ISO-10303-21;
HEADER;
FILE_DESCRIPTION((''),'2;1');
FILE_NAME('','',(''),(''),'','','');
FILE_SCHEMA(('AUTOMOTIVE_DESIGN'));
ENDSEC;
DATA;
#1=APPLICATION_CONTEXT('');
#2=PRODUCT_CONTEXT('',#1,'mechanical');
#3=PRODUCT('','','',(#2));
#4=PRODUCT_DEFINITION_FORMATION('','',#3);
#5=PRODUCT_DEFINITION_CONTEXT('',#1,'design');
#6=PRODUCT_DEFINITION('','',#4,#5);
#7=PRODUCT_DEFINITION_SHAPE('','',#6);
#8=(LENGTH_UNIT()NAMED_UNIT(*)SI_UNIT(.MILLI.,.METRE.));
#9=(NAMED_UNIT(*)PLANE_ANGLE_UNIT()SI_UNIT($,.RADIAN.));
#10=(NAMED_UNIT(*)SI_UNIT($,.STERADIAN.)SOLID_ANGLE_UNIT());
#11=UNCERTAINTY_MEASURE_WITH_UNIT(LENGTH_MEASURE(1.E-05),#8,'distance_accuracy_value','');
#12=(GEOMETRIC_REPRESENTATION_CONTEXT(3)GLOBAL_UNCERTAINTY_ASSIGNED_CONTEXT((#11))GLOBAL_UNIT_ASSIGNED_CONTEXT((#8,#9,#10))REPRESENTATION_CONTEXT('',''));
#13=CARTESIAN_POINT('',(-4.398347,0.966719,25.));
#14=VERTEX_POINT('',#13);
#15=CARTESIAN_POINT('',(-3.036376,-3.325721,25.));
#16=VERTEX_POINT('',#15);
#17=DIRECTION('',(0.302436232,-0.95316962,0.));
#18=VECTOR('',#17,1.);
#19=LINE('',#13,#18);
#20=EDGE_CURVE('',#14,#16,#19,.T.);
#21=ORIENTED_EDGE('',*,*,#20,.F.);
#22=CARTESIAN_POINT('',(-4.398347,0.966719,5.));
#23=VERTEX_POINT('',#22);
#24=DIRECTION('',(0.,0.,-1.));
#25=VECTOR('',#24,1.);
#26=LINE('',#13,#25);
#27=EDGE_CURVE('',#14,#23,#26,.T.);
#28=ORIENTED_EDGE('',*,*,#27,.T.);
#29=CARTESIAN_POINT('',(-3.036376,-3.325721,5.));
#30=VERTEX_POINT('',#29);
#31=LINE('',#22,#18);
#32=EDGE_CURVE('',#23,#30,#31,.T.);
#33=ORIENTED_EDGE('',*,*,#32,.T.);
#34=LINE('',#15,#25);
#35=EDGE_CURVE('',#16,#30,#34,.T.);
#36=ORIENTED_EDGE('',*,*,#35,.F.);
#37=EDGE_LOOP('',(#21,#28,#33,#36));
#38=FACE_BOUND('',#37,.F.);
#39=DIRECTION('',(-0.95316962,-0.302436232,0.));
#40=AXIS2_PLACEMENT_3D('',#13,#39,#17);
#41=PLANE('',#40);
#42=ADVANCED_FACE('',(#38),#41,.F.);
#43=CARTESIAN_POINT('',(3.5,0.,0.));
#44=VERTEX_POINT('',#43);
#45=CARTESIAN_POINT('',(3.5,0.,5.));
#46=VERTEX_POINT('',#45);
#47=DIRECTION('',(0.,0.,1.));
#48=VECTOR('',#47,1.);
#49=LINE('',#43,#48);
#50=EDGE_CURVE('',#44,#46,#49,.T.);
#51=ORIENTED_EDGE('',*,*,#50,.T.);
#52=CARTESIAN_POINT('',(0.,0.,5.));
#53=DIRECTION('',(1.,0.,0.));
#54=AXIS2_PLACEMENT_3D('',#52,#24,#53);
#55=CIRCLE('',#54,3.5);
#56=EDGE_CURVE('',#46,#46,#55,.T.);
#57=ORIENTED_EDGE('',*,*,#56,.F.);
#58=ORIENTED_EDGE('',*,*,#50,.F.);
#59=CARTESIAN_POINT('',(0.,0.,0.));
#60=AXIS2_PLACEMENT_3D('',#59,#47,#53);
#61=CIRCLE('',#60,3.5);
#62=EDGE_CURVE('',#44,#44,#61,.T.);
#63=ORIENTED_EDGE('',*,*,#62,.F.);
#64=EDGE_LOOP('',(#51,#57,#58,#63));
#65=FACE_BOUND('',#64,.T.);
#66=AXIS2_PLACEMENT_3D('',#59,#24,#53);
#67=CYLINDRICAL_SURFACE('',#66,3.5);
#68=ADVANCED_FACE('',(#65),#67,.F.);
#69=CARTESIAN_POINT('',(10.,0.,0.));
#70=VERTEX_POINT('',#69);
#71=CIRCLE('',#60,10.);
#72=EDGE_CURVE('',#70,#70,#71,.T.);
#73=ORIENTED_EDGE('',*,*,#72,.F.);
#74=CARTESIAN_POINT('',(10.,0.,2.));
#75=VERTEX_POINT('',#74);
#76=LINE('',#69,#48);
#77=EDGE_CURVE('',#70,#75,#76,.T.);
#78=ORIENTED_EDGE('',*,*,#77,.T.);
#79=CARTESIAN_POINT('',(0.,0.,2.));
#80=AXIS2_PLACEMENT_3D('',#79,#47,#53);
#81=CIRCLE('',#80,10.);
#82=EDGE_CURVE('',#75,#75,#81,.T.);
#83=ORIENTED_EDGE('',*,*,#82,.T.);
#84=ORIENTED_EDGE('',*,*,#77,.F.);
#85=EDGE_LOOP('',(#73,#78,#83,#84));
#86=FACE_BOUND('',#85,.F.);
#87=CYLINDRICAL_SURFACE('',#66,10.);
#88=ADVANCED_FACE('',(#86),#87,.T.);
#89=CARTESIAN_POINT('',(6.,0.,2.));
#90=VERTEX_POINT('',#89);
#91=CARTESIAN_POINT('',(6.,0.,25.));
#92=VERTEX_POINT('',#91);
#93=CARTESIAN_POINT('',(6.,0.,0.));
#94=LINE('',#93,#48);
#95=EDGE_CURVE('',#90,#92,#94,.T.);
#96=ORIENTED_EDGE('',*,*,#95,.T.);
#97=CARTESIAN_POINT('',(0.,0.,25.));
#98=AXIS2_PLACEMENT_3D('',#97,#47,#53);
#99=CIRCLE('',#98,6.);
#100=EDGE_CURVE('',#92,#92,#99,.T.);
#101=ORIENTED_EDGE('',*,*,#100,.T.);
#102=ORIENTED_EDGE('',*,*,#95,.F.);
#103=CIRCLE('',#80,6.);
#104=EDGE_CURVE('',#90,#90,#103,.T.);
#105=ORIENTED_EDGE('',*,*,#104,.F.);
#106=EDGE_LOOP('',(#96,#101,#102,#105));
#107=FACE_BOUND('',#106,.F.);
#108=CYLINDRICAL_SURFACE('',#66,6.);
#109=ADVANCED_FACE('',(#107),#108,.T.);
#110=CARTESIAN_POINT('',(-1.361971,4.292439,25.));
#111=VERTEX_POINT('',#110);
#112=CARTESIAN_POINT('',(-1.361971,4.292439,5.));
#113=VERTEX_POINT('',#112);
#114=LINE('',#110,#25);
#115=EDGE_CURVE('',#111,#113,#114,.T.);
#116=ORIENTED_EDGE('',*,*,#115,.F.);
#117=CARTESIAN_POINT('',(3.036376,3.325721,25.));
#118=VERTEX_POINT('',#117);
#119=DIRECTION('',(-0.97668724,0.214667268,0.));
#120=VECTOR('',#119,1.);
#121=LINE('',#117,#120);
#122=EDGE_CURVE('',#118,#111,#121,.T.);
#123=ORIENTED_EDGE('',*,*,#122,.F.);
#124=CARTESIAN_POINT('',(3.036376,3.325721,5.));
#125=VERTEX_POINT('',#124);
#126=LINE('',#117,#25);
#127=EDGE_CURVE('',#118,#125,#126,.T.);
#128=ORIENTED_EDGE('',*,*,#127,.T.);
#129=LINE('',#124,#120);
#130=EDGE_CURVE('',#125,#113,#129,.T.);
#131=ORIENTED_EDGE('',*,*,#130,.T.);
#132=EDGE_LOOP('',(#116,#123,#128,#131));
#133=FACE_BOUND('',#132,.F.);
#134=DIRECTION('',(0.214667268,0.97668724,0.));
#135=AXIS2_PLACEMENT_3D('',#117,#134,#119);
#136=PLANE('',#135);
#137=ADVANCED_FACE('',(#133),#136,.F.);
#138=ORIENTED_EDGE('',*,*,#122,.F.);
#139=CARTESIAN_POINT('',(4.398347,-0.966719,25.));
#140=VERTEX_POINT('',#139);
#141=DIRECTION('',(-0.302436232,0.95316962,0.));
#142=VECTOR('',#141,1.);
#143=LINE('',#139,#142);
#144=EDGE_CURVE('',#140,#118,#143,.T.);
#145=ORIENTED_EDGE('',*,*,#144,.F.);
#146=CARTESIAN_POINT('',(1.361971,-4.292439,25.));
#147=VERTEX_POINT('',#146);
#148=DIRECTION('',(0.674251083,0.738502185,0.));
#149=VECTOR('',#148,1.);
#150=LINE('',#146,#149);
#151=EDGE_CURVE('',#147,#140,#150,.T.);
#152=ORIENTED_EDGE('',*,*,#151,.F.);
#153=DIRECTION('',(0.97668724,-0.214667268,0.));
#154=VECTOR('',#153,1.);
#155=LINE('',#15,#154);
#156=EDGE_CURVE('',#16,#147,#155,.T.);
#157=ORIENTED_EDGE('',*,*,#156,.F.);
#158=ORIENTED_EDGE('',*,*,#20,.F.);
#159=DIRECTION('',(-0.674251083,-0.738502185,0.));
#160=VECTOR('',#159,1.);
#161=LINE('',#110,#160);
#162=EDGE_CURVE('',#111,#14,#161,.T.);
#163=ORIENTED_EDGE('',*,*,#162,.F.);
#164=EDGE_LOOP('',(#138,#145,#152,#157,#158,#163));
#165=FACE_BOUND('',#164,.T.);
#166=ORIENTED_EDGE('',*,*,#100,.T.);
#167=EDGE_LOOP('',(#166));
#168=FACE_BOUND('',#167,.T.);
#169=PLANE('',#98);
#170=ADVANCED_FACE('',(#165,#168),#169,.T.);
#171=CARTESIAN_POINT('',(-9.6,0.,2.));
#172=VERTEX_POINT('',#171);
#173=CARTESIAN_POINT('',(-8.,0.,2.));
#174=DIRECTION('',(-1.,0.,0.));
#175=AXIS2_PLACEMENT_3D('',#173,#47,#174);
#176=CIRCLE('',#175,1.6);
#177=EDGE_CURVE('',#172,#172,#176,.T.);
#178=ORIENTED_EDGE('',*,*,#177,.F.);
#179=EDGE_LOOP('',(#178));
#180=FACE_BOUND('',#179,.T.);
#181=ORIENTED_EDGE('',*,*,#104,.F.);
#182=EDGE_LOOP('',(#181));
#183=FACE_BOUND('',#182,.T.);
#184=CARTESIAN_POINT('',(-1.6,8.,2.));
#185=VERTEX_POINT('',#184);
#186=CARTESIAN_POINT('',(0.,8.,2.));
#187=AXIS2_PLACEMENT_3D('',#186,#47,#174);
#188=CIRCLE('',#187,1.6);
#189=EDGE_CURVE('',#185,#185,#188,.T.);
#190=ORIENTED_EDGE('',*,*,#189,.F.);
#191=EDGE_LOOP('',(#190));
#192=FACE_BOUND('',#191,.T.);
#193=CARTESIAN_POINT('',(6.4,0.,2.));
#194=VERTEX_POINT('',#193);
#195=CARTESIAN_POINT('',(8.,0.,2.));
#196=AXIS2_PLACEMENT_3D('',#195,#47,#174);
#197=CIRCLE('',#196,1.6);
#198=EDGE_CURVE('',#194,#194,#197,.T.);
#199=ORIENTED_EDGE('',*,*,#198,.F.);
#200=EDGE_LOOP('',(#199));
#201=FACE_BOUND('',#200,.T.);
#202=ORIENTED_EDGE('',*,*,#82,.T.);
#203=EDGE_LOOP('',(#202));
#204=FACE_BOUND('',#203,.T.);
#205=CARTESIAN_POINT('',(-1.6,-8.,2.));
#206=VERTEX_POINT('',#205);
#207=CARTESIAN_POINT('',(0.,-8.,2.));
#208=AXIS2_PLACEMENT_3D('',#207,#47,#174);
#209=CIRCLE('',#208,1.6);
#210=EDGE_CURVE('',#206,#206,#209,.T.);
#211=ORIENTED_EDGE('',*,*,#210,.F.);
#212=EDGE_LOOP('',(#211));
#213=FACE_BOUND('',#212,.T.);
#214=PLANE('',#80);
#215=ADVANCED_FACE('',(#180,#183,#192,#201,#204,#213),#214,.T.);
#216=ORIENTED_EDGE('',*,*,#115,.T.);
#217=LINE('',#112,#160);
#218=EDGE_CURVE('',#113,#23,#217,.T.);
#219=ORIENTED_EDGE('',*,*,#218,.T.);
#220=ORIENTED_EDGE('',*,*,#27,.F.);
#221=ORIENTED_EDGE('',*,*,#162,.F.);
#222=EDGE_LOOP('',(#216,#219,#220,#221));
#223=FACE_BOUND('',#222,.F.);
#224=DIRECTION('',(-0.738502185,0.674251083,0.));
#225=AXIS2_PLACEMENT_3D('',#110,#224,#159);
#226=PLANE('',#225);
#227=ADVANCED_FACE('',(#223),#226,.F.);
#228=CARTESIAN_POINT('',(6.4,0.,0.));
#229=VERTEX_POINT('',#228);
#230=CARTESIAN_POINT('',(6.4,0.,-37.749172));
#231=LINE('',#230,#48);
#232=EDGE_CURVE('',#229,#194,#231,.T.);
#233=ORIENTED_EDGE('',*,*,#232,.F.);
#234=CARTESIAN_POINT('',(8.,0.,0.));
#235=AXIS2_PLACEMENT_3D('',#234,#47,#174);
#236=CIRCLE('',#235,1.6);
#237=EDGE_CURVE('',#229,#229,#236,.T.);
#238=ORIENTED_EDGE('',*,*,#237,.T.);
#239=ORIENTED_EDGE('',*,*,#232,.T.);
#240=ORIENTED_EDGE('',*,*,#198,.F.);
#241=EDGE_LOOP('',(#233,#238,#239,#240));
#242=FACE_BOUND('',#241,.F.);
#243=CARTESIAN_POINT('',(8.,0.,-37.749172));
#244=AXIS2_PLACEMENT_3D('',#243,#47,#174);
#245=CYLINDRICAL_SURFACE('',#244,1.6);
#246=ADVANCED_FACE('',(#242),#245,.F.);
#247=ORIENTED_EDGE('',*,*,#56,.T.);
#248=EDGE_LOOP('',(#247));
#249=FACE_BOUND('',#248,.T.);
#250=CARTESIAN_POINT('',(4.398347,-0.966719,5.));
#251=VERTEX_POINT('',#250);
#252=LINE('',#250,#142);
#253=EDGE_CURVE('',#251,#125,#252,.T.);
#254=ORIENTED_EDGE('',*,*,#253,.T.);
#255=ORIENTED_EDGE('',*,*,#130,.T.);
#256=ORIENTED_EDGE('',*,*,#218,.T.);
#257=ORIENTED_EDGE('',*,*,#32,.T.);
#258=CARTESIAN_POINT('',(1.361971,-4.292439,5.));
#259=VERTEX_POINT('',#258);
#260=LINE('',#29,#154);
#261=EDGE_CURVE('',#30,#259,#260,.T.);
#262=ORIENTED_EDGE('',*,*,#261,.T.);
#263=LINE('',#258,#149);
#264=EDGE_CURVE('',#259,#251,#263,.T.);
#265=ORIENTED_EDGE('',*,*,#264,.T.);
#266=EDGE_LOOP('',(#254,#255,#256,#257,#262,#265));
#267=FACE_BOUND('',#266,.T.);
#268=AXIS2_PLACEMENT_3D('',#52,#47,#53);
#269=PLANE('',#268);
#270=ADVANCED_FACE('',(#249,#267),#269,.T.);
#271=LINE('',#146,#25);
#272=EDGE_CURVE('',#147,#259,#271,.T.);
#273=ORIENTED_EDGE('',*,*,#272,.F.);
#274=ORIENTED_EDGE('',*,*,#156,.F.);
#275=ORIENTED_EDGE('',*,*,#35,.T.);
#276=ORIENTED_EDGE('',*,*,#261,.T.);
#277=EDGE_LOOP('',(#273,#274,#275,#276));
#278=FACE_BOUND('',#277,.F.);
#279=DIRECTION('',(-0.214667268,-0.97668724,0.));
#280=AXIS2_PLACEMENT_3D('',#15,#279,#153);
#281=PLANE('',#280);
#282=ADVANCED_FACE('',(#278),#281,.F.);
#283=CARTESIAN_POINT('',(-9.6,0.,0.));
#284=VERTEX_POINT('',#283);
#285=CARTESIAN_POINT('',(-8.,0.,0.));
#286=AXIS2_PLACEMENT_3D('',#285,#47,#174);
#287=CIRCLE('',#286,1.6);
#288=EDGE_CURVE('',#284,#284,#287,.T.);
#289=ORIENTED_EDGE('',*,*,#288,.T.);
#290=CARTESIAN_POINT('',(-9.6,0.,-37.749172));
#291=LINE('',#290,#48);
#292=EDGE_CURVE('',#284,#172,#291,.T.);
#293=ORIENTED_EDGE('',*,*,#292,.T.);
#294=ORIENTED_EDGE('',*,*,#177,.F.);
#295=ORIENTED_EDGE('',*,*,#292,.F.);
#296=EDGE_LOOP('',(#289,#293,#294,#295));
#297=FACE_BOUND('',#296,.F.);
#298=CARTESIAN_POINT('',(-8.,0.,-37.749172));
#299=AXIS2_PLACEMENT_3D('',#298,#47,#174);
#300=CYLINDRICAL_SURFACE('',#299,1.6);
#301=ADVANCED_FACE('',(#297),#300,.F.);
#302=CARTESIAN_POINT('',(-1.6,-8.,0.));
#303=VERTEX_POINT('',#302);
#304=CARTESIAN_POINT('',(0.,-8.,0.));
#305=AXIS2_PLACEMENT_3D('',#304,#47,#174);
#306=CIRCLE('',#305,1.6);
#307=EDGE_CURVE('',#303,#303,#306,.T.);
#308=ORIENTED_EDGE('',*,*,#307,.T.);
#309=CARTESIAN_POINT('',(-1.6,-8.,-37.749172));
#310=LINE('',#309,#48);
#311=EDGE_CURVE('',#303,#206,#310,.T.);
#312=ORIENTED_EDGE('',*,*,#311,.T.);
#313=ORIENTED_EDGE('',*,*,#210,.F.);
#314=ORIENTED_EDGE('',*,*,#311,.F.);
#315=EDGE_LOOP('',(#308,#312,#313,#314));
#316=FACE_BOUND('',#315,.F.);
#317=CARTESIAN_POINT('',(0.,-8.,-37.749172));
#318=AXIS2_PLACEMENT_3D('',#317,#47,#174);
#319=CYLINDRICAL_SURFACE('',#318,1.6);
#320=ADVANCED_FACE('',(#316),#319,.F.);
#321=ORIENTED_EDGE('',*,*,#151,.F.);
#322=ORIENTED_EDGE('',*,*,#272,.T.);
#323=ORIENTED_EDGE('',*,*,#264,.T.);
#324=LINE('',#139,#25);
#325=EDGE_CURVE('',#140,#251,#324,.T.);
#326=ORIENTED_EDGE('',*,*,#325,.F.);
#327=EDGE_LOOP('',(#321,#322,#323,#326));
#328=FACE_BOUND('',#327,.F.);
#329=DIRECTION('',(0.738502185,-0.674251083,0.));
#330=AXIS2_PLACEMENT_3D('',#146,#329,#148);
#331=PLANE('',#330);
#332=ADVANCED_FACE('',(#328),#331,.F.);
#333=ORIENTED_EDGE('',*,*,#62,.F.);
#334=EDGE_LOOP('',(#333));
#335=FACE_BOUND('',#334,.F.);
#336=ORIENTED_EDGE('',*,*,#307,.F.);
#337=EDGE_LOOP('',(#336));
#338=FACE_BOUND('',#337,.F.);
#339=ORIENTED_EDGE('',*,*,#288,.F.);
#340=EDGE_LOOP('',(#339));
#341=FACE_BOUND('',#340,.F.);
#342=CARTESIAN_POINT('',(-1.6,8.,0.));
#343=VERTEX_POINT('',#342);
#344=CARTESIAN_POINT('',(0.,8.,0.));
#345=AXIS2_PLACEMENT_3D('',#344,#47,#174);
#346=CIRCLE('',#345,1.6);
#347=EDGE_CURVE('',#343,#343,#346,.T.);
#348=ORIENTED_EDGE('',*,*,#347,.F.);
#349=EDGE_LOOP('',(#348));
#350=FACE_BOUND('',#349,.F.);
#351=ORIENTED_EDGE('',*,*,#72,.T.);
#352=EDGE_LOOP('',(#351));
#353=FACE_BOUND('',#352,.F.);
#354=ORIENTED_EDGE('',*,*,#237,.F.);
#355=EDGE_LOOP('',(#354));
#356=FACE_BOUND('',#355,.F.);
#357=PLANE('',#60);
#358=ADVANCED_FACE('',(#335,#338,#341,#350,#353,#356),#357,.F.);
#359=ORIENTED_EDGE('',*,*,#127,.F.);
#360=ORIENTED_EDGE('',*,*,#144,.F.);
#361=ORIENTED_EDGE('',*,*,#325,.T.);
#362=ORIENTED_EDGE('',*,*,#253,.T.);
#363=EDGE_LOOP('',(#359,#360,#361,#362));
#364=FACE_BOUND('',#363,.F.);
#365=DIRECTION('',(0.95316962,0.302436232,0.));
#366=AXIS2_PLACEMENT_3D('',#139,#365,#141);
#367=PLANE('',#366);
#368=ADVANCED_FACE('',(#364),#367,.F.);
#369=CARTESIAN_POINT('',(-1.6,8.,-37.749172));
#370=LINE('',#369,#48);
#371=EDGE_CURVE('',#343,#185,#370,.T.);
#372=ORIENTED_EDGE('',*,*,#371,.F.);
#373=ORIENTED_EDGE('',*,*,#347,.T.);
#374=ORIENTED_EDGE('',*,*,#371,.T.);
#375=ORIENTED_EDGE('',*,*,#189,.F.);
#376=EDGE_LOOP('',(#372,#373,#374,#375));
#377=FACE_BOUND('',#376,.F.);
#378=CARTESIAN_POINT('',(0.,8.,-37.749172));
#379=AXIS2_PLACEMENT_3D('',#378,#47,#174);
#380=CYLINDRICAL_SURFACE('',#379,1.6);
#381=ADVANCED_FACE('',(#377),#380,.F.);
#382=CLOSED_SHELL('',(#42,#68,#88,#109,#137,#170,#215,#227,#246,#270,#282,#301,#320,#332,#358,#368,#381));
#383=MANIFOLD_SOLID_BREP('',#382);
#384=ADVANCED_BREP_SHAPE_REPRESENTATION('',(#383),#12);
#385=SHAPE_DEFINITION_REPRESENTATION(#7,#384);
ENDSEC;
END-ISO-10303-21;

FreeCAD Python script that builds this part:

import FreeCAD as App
import Part
import Sketcher
from FreeCAD import Vector

doc = App.newDocument("Part")
body = doc.addObject("PartDesign::Body", "Body")

# Sketch on XY plane
sketch1 = body.newObject("Sketcher::SketchObject", "Sketch")
sketch1.AttachmentSupport = (doc.getObject("XY_Plane"), [""])
sketch1.MapMode = "FlatFace"
sketch1.addGeometry(Part.Circle(Vector(0, 0, 0), Vector(0, 0, 1), 10), False)
sketch1.addGeometry(Part.Circle(Vector(0, 0, 0), Vector(0, 0, 1), 6), False)
sketch1.addConstraint(Sketcher.Constraint("Coincident", 0, 3, -1, 1))
sketch1.addConstraint(Sketcher.Constraint("Coincident", 1, 3, -1, 1))
sketch1.addConstraint(Sketcher.Constraint("Diameter", 0, 20.0))
sketch1.addConstraint(Sketcher.Constraint("Diameter", 1, 12.0))
pad1 = body.newObject("PartDesign::Pad", "Pad")
pad1.Profile = sketch1
pad1.Length = 2

# Sketch on XY plane
sketch2 = body.newObject("Sketcher::SketchObject", "Sketch001")
sketch2.AttachmentSupport = (doc.getObject("XY_Plane"), [""])
sketch2.MapMode = "FlatFace"
sketch2.addGeometry(Part.Circle(Vector(0, 0, 0), Vector(0, 0, 1), 6), False)
sketch2.addGeometry(Part.Circle(Vector(0, 0, 0), Vector(0, 0, 1), 3.5), False)
sketch2.addConstraint(Sketcher.Constraint("Coincident", 0, 3, -1, 1))
sketch2.addConstraint(Sketcher.Constraint("Coincident", 1, 3, -1, 1))
sketch2.addConstraint(Sketcher.Constraint("Diameter", 0, 12.0))
sketch2.addConstraint(Sketcher.Constraint("Diameter", 1, 7.0))
pad2 = body.newObject("PartDesign::Pad", "Pad001")
pad2.Profile = sketch2
pad2.Length = 25

# Sketch on XY plane
sketch3 = body.newObject("Sketcher::SketchObject", "Sketch002")
sketch3.AttachmentSupport = (doc.getObject("XY_Plane"), [""])
sketch3.MapMode = "FlatFace"
sketch3.AttachmentOffset = App.Placement(Vector(0, 0, 25), App.Rotation())
sketch3.addGeometry(Part.LineSegment(Vector(1.4, -4.3, 0), Vector(4.4, -1, 0)), False)
sketch3.addGeometry(Part.LineSegment(Vector(4.4, -1, 0), Vector(3, 3.3, 0)), False)
sketch3.addGeometry(Part.LineSegment(Vector(3, 3.3, 0), Vector(-1.4, 4.3, 0)), False)
sketch3.addGeometry(Part.LineSegment(Vector(-1.4, 4.3, 0), Vector(-4.4, 1, 0)), False)
sketch3.addGeometry(Part.LineSegment(Vector(-4.4, 1, 0), Vector(-3, -3.3, 0)), False)
sketch3.addGeometry(Part.LineSegment(Vector(-3, -3.3, 0), Vector(1.4, -4.3, 0)), False)
sketch3.addConstraint(Sketcher.Constraint("Coincident", 0, 2, 1, 1))
sketch3.addConstraint(Sketcher.Constraint("Coincident", 1, 2, 2, 1))
sketch3.addConstraint(Sketcher.Constraint("Coincident", 2, 2, 3, 1))
sketch3.addConstraint(Sketcher.Constraint("Coincident", 3, 2, 4, 1))
sketch3.addConstraint(Sketcher.Constraint("Coincident", 4, 2, 5, 1))
sketch3.addConstraint(Sketcher.Constraint("Coincident", 5, 2, 0, 1))
sketch3.addConstraint(Sketcher.Constraint("Symmetric", 0, 2, 3, 2, -1, 1))
sketch3.addConstraint(Sketcher.Constraint("Symmetric", 1, 2, 4, 2, -1, 1))
sketch3.addConstraint(Sketcher.Constraint("Symmetric", 2, 2, 5, 2, -1, 1))
sketch3.addConstraint(Sketcher.Constraint("Equal", 0, 1))
sketch3.addConstraint(Sketcher.Constraint("Equal", 1, 2))
sketch3.addConstraint(Sketcher.Constraint("Distance", 0, 4.503331))
sketch3.addConstraint(Sketcher.Constraint("DistanceY", 0, 2, -1, 1, 0.966719))
sketch3.addConstraint(Sketcher.Constraint("DistanceY", -1, 1, 1, 2, 3.325721))
sketch3.addConstraint(Sketcher.Constraint("DistanceX", 2, 2, -1, 1, 1.361971))
pocket1 = body.newObject("PartDesign::Pocket", "Pocket")
pocket1.Profile = sketch3
pocket1.Length = 20

# Sketch on XY plane
sketch4 = body.newObject("Sketcher::SketchObject", "Sketch003")
sketch4.AttachmentSupport = (doc.getObject("XY_Plane"), [""])
sketch4.MapMode = "FlatFace"
sketch4.addGeometry(Part.Circle(Vector(-8, 0, 0), Vector(0, 0, 1), 1.6), False)
sketch4.addGeometry(Part.Circle(Vector(0, -8, 0), Vector(0, 0, 1), 1.6), False)
sketch4.addGeometry(Part.Circle(Vector(8, 0, 0), Vector(0, 0, 1), 1.6), False)
sketch4.addGeometry(Part.Circle(Vector(0, 8, 0), Vector(0, 0, 1), 1.6), False)
sketch4.addConstraint(Sketcher.Constraint("Equal", 0, 1))
sketch4.addConstraint(Sketcher.Constraint("Equal", 1, 2))
sketch4.addConstraint(Sketcher.Constraint("Equal", 2, 3))
sketch4.addConstraint(Sketcher.Constraint("Symmetric", 0, 3, 2, 3, -1, 1))
sketch4.addConstraint(Sketcher.Constraint("Symmetric", 1, 3, 3, 3, -1, 1))
sketch4.addConstraint(Sketcher.Constraint("PointOnObject", 0, 3, -1))
sketch4.addConstraint(Sketcher.Constraint("PointOnObject", 1, 3, -2))
sketch4.addConstraint(Sketcher.Constraint("Diameter", 0, 3.2))
sketch4.addConstraint(Sketcher.Constraint("DistanceX", 0, 3, -1, 1, 8.0))
sketch4.addConstraint(Sketcher.Constraint("DistanceY", 1, 3, -1, 1, 8.0))
doc.recompute()
hole = body.newObject("PartDesign::Hole", "Hole")
hole.Profile = sketch4
hole.ThreadType = "None"
hole.Diameter = 3.2
hole.DepthType = "ThroughAll"
hole.Reversed = True

doc.recompute()
